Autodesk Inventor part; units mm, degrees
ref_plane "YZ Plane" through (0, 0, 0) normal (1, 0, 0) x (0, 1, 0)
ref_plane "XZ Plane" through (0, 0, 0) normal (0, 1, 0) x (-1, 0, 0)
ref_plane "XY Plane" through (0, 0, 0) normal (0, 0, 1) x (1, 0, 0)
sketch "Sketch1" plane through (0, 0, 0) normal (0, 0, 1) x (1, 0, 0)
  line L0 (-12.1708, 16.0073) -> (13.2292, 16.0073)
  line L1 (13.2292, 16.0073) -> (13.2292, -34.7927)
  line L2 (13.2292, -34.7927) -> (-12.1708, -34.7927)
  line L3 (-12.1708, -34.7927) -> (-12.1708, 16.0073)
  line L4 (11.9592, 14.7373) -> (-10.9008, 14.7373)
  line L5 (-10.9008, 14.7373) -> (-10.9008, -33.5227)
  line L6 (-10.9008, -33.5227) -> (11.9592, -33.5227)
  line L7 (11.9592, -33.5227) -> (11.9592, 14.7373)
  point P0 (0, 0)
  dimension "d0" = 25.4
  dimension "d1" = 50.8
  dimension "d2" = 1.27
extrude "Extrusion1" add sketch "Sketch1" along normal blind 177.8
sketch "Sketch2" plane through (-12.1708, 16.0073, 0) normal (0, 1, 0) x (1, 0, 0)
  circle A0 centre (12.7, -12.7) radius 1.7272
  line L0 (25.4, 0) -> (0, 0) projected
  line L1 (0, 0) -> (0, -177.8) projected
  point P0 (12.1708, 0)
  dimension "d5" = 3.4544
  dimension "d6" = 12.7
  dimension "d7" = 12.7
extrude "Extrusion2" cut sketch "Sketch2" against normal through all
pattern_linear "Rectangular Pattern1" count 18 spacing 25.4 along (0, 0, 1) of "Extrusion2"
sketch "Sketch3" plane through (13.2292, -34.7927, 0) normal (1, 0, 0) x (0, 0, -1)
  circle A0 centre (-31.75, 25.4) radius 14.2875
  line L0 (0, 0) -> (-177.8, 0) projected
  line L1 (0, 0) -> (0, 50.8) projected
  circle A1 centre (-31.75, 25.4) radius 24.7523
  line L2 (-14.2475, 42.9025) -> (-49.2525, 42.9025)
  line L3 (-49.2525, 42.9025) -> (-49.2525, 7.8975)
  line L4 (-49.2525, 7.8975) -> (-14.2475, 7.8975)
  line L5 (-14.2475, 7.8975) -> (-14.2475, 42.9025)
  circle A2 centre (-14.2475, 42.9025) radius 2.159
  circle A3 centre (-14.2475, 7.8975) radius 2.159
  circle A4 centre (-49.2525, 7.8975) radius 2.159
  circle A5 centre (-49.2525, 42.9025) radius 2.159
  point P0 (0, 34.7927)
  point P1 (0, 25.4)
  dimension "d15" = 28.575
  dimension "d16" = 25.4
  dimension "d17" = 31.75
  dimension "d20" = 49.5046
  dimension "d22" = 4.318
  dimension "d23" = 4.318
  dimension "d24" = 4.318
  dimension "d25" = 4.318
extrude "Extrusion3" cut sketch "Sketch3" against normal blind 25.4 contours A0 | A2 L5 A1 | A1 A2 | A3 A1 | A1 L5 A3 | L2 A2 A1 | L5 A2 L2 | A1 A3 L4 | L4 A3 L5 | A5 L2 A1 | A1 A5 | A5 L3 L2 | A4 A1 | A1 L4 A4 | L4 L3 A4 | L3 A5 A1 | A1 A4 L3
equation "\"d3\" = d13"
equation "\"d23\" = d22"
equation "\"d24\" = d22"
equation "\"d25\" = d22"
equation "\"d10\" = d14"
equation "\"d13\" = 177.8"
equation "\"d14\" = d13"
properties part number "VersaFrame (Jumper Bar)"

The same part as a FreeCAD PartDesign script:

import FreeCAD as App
import Part
import Sketcher
Q = App.Units.Quantity

doc = App.newDocument("Part")
body = doc.addObject("PartDesign::Body", "Body")

sketch1 = body.newObject("Sketcher::SketchObject", "Sketch")
sketch1.AttachmentSupport = (doc.getObject("XY_Plane"), [""])
sketch1.MapMode = "FlatFace"
sketch1.addGeometry(Part.LineSegment(App.Vector(13, 16, 0), App.Vector(-12, 16, 0)), False)
sketch1.addGeometry(Part.LineSegment(App.Vector(-12, 16, 0), App.Vector(-12, -35, 0)), False)
sketch1.addGeometry(Part.LineSegment(App.Vector(-12, -35, 0), App.Vector(13, -35, 0)), False)
sketch1.addGeometry(Part.LineSegment(App.Vector(13, -35, 0), App.Vector(13, 16, 0)), False)
sketch1.addGeometry(Part.LineSegment(App.Vector(-11, 15, 0), App.Vector(12, 15, 0)), False)
sketch1.addGeometry(Part.LineSegment(App.Vector(12, 15, 0), App.Vector(12, -34, 0)), False)
sketch1.addGeometry(Part.LineSegment(App.Vector(12, -34, 0), App.Vector(-11, -34, 0)), False)
sketch1.addGeometry(Part.LineSegment(App.Vector(-11, -34, 0), App.Vector(-11, 15, 0)), False)
sketch1.addConstraint(Sketcher.Constraint("Coincident", 0, 2, 1, 1))
sketch1.addConstraint(Sketcher.Constraint("Coincident", 1, 2, 2, 1))
sketch1.addConstraint(Sketcher.Constraint("Coincident", 2, 2, 3, 1))
sketch1.addConstraint(Sketcher.Constraint("Coincident", 3, 2, 0, 1))
sketch1.addConstraint(Sketcher.Constraint("Coincident", 4, 2, 5, 1))
sketch1.addConstraint(Sketcher.Constraint("Coincident", 5, 2, 6, 1))
sketch1.addConstraint(Sketcher.Constraint("Coincident", 6, 2, 7, 1))
sketch1.addConstraint(Sketcher.Constraint("Coincident", 7, 2, 4, 1))
sketch1.addConstraint(Sketcher.Constraint("Horizontal", 0))
sketch1.addConstraint(Sketcher.Constraint("Vertical", 1))
sketch1.addConstraint(Sketcher.Constraint("Horizontal", 2))
sketch1.addConstraint(Sketcher.Constraint("Vertical", 3))
sketch1.addConstraint(Sketcher.Constraint("Horizontal", 4))
sketch1.addConstraint(Sketcher.Constraint("Vertical", 5))
sketch1.addConstraint(Sketcher.Constraint("Horizontal", 6))
sketch1.addConstraint(Sketcher.Constraint("Vertical", 7))
sketch1.addConstraint(Sketcher.Constraint("DistanceX", 0, 2, 0, 1, Q("1 in")))
sketch1.addConstraint(Sketcher.Constraint("DistanceY", 1, 2, 1, 1, Q("2 in")))
sketch1.addConstraint(Sketcher.Constraint("DistanceX", 4, 2, 3, 2, Q("0.05 in")))
sketch1.addConstraint(Sketcher.Constraint("DistanceY", 4, 2, 3, 2, Q("0.05 in")))
sketch1.addConstraint(Sketcher.Constraint("DistanceY", 2, 2, 5, 2, Q("0.05 in")))
sketch1.addConstraint(Sketcher.Constraint("DistanceX", 1, 2, 6, 2, Q("0.05 in")))
sketch1.addConstraint(Sketcher.Constraint("DistanceY", -1, 1, 0, 2, Q("0.6302 in")))
sketch1.addConstraint(Sketcher.Constraint("DistanceX", 0, 2, -1, 1, Q("12.1708 mm")))
pad1 = body.newObject("PartDesign::Pad", "Pad")
pad1.Profile = sketch1
pad1.Length = Q("7 in")

sketch2 = body.newObject("Sketcher::SketchObject", "Sketch001")
sketch2.AttachmentSupport = (doc.getObject("XZ_Plane"), [""])
sketch2.MapMode = "FlatFace"
sketch2.AttachmentOffset = App.Placement(App.Vector(0, 0, -0.6302087 * 25.4), App.Rotation())
sketch2.addGeometry(Part.Circle(App.Vector(0.5, 12.7, 0), App.Vector(0, 0, 1), 1.7), False)
sketch2.addConstraint(Sketcher.Constraint("Diameter", 0, Q("0.136 in")))
sketch2.addConstraint(Sketcher.Constraint("DistanceY", -1, 1, 0, 3, Q("0.5 in")))
sketch2.addConstraint(Sketcher.Constraint("DistanceX", -1, 1, 0, 3, Q("0.5292 mm")))
pocket1 = body.newObject("PartDesign::Pocket", "Pocket")
pocket1.Profile = sketch2
pocket1.Type = "ThroughAll"
pocket1.Reversed = True
doc.recompute()

linearpattern = body.newObject("PartDesign::LinearPattern", "LinearPattern")
linearpattern.Originals = [pocket1]
linearpattern.Direction = (doc.getObject("Z_Axis"), [""])
linearpattern.Mode = "offset"
linearpattern.Offset = Q("1 in")
linearpattern.Occurrences = 18
body.Tip = linearpattern

sketch3 = body.newObject("Sketcher::SketchObject", "Sketch002")
sketch3.AttachmentSupport = (doc.getObject("YZ_Plane"), [""])
sketch3.MapMode = "FlatFace"
sketch3.AttachmentOffset = App.Placement(App.Vector(0, 0, 13.2292), App.Rotation())
sketch3.addGeometry(Part.Circle(App.Vector(-9.4, 31.8, 0), App.Vector(0, 0, 1), 14.3), False)
sketch3.addGeometry(Part.Circle(App.Vector(8.1, 14.2, 0), App.Vector(0, 0, 1), 2.2), False)
sketch3.addGeometry(Part.Circle(App.Vector(-26.9, 14.2, 0), App.Vector(0, 0, 1), 2.2), False)
sketch3.addGeometry(Part.Circle(App.Vector(8.1, 49.3, 0), App.Vector(0, 0, 1), 2.2), False)
sketch3.addGeometry(Part.Circle(App.Vector(-26.9, 49.3, 0), App.Vector(0, 0, 1), 2.2), False)
sketch3.addConstraint(Sketcher.Constraint("Equal", 1, 2))
sketch3.addConstraint(Sketcher.Constraint("Equal", 2, 3))
sketch3.addConstraint(Sketcher.Constraint("Equal", 3, 4))
sketch3.addConstraint(Sketcher.Constraint("Horizontal", 1, 3, 2, 3))
sketch3.addConstraint(Sketcher.Constraint("Horizontal", 3, 3, 4, 3))
sketch3.addConstraint(Sketcher.Constraint("Vertical", 1, 3, 3, 3))
sketch3.addConstraint(Sketcher.Constraint("Vertical", 2, 3, 4, 3))
sketch3.addConstraint(Sketcher.Constraint("Diameter", 1, Q("0.17 in")))
sketch3.addConstraint(Sketcher.Constraint("Diameter", 0, Q("1.125 in")))
sketch3.addConstraint(Sketcher.Constraint("DistanceY", -1, 1, 0, 3, Q("1.25 in")))
sketch3.addConstraint(Sketcher.Constraint("DistanceX", 0, 3, -1, 1, Q("0.3698 in")))
sketch3.addConstraint(Sketcher.Constraint("DistanceX", -1, 1, 1, 3, Q("8.1098 mm")))
sketch3.addConstraint(Sketcher.Constraint("DistanceY", -1, 1, 1, 3, Q("14.2475 mm")))
sketch3.addConstraint(Sketcher.Constraint("DistanceX", 2, 3, -1, 1, Q("26.8952 mm")))
sketch3.addConstraint(Sketcher.Constraint("DistanceY", -1, 1, 3, 3, Q("49.2525 mm")))
pocket2 = body.newObject("PartDesign::Pocket", "Pocket001")
pocket2.Profile = sketch3
pocket2.Length = Q("1 in")

doc.recompute()
